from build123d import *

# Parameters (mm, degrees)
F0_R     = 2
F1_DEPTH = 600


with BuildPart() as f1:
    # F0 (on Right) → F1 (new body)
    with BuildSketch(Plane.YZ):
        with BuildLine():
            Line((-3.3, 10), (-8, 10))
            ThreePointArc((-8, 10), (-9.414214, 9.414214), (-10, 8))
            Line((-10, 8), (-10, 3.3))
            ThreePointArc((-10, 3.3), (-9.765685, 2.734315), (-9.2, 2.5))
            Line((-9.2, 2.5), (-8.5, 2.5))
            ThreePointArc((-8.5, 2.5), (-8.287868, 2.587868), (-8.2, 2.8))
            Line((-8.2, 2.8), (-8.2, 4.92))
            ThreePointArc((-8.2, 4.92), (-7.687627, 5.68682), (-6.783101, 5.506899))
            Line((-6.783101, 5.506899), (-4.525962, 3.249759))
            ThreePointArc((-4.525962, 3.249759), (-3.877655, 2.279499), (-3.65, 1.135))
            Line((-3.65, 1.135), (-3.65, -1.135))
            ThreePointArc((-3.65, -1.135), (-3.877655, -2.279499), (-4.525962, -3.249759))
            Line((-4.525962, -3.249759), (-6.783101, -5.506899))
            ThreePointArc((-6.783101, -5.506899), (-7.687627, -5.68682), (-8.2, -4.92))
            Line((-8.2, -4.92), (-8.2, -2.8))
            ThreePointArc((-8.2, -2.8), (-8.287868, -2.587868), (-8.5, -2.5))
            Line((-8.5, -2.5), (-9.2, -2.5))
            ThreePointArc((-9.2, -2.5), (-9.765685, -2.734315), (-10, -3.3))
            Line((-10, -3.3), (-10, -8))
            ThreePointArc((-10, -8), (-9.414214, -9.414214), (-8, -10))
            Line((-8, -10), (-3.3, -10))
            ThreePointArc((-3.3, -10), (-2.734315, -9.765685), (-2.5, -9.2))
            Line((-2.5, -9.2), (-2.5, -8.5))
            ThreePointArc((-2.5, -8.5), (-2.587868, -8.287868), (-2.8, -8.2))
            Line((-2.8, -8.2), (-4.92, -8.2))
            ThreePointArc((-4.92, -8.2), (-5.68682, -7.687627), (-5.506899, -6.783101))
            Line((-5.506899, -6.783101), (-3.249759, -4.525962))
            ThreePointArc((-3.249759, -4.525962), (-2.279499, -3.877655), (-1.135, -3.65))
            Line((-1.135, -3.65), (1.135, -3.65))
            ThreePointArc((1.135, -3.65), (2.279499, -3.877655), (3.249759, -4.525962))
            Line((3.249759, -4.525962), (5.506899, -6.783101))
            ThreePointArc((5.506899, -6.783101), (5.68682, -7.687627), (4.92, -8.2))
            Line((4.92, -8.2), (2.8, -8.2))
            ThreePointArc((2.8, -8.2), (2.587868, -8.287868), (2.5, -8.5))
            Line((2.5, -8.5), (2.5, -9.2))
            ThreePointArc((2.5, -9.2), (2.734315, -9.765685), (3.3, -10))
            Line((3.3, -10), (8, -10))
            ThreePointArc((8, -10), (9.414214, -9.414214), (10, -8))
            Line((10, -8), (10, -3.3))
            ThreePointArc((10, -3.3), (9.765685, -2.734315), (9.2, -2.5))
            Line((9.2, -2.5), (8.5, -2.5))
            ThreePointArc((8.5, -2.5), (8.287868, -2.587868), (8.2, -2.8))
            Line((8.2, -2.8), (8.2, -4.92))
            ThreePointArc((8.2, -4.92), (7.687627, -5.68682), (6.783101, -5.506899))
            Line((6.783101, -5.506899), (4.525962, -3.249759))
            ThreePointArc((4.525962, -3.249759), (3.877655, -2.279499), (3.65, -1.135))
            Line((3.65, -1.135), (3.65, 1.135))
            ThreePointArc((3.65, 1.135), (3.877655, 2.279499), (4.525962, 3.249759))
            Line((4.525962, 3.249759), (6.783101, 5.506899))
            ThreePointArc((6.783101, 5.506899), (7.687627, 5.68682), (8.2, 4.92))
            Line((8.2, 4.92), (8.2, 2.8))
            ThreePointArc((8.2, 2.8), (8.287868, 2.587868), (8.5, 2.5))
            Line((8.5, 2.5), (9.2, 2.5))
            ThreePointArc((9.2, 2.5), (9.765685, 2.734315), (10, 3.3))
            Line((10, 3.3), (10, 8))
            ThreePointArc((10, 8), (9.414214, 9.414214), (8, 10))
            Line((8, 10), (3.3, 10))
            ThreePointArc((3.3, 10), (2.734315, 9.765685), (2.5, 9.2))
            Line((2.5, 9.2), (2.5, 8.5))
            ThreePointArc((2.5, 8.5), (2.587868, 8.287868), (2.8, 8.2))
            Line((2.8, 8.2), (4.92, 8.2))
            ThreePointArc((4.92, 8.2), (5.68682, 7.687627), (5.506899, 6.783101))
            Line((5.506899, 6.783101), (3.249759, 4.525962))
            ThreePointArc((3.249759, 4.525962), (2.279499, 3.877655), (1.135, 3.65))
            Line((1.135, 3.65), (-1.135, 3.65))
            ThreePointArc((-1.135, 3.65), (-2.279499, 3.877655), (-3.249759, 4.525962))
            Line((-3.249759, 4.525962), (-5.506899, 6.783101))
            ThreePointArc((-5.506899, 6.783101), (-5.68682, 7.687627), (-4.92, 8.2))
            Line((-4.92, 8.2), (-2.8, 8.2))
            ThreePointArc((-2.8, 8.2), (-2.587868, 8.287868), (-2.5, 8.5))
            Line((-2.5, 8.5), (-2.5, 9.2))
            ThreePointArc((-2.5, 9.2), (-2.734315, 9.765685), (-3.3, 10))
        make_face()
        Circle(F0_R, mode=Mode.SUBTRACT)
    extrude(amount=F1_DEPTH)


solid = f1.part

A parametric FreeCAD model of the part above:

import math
import FreeCAD as App
import Part
import Sketcher
from FreeCAD import Vector
Q = App.Units.Quantity

doc = App.newDocument("Part")
body = doc.addObject("PartDesign::Body", "Body")

sketch1 = doc.addObject("Sketcher::SketchObject", "Sketch")
body.addObject(sketch1)
sketch1.AttachmentSupport = (doc.YZ_Plane, [""])
sketch1.MapMode = "FlatFace"
sketch1.addGeometry(Part.LineSegment(Vector(-3.3, 10, 0), Vector(-8, 10, 0)), False)
sketch1.addGeometry(Part.ArcOfCircle(Part.Circle(Vector(-8, 8, 0), Vector(0, 0, 1), 2), math.radians(90), math.radians(180)), False)
sketch1.addGeometry(Part.LineSegment(Vector(-10, 8, 0), Vector(-10, 3.3, 0)), False)
sketch1.addGeometry(Part.ArcOfCircle(Part.Circle(Vector(-9.2, 3.3, 0), Vector(0, 0, 1), 0.8), math.radians(-180), math.radians(-90)), False)
sketch1.addGeometry(Part.LineSegment(Vector(-9.2, 2.5, 0), Vector(-8.5, 2.5, 0)), False)
sketch1.addGeometry(Part.ArcOfCircle(Part.Circle(Vector(-8.5, 2.8, 0), Vector(0, 0, 1), 0.3), math.radians(-90), math.radians(0)), False)
sketch1.addGeometry(Part.LineSegment(Vector(-8.2, 2.8, 0), Vector(-8.2, 4.92, 0)), False)
sketch1.addGeometry(Part.ArcOfCircle(Part.Circle(Vector(-7.37, 4.92, 0), Vector(0, 0, 1), 0.83), math.radians(45), math.radians(180)), False)
sketch1.addGeometry(Part.LineSegment(Vector(-6.78, 5.51, 0), Vector(-4.53, 3.25, 0)), False)
sketch1.addGeometry(Part.ArcOfCircle(Part.Circle(Vector(-6.64, 1.13, 0), Vector(0, 0, 1), 2.99), math.radians(0), math.radians(45)), False)
sketch1.addGeometry(Part.LineSegment(Vector(-3.65, 1.14, 0), Vector(-3.65, -1.14, 0)), False)
sketch1.addGeometry(Part.ArcOfCircle(Part.Circle(Vector(-6.64, -1.13, 0), Vector(0, 0, 1), 2.99), math.radians(-45), math.radians(0)), False)
sketch1.addGeometry(Part.LineSegment(Vector(-4.53, -3.25, 0), Vector(-6.78, -5.51, 0)), False)
sketch1.addGeometry(Part.ArcOfCircle(Part.Circle(Vector(-7.37, -4.92, 0), Vector(0, 0, 1), 0.83), math.radians(-180), math.radians(-45)), False)
sketch1.addGeometry(Part.LineSegment(Vector(-8.2, -4.92, 0), Vector(-8.2, -2.8, 0)), False)
sketch1.addGeometry(Part.ArcOfCircle(Part.Circle(Vector(-8.5, -2.8, 0), Vector(0, 0, 1), 0.3), math.radians(0), math.radians(90)), False)
sketch1.addGeometry(Part.LineSegment(Vector(-8.5, -2.5, 0), Vector(-9.2, -2.5, 0)), False)
sketch1.addGeometry(Part.ArcOfCircle(Part.Circle(Vector(-9.2, -3.3, 0), Vector(0, 0, 1), 0.8), math.radians(90), math.radians(180)), False)
sketch1.addGeometry(Part.LineSegment(Vector(-10, -3.3, 0), Vector(-10, -8, 0)), False)
sketch1.addGeometry(Part.ArcOfCircle(Part.Circle(Vector(-8, -8, 0), Vector(0, 0, 1), 2), math.radians(180), math.radians(270)), False)
sketch1.addGeometry(Part.LineSegment(Vector(-8, -10, 0), Vector(-3.3, -10, 0)), False)
sketch1.addGeometry(Part.ArcOfCircle(Part.Circle(Vector(-3.3, -9.2, 0), Vector(0, 0, 1), 0.8), math.radians(-90), math.radians(0)), False)
sketch1.addGeometry(Part.LineSegment(Vector(-2.5, -9.2, 0), Vector(-2.5, -8.5, 0)), False)
sketch1.addGeometry(Part.ArcOfCircle(Part.Circle(Vector(-2.8, -8.5, 0), Vector(0, 0, 1), 0.3), math.radians(0), math.radians(90)), False)
sketch1.addGeometry(Part.LineSegment(Vector(-2.8, -8.2, 0), Vector(-4.92, -8.2, 0)), False)
sketch1.addGeometry(Part.ArcOfCircle(Part.Circle(Vector(-4.92, -7.37, 0), Vector(0, 0, 1), 0.83), math.radians(135), math.radians(270)), False)
sketch1.addGeometry(Part.LineSegment(Vector(-5.51, -6.78, 0), Vector(-3.25, -4.53, 0)), False)
sketch1.addGeometry(Part.ArcOfCircle(Part.Circle(Vector(-1.13, -6.64, 0), Vector(0, 0, 1), 2.99), math.radians(90), math.radians(135)), False)
sketch1.addGeometry(Part.LineSegment(Vector(-1.14, -3.65, 0), Vector(1.14, -3.65, 0)), False)
sketch1.addGeometry(Part.ArcOfCircle(Part.Circle(Vector(1.13, -6.64, 0), Vector(0, 0, 1), 2.99), math.radians(45), math.radians(90)), False)
sketch1.addGeometry(Part.LineSegment(Vector(3.25, -4.53, 0), Vector(5.51, -6.78, 0)), False)
sketch1.addGeometry(Part.ArcOfCircle(Part.Circle(Vector(4.92, -7.37, 0), Vector(0, 0, 1), 0.83), math.radians(-90), math.radians(45)), False)
sketch1.addGeometry(Part.LineSegment(Vector(4.92, -8.2, 0), Vector(2.8, -8.2, 0)), False)
sketch1.addGeometry(Part.ArcOfCircle(Part.Circle(Vector(2.8, -8.5, 0), Vector(0, 0, 1), 0.3), math.radians(90), math.radians(180)), False)
sketch1.addGeometry(Part.LineSegment(Vector(2.5, -8.5, 0), Vector(2.5, -9.2, 0)), False)
sketch1.addGeometry(Part.ArcOfCircle(Part.Circle(Vector(3.3, -9.2, 0), Vector(0, 0, 1), 0.8), math.radians(-180), math.radians(-90)), False)
sketch1.addGeometry(Part.LineSegment(Vector(3.3, -10, 0), Vector(8, -10, 0)), False)
sketch1.addGeometry(Part.ArcOfCircle(Part.Circle(Vector(8, -8, 0), Vector(0, 0, 1), 2), math.radians(-90), math.radians(0)), False)
sketch1.addGeometry(Part.LineSegment(Vector(10, -8, 0), Vector(10, -3.3, 0)), False)
sketch1.addGeometry(Part.ArcOfCircle(Part.Circle(Vector(9.2, -3.3, 0), Vector(0, 0, 1), 0.8), math.radians(0), math.radians(90)), False)
sketch1.addGeometry(Part.LineSegment(Vector(9.2, -2.5, 0), Vector(8.5, -2.5, 0)), False)
sketch1.addGeometry(Part.ArcOfCircle(Part.Circle(Vector(8.5, -2.8, 0), Vector(0, 0, 1), 0.3), math.radians(90), math.radians(180)), False)
sketch1.addGeometry(Part.LineSegment(Vector(8.2, -2.8, 0), Vector(8.2, -4.92, 0)), False)
sketch1.addGeometry(Part.ArcOfCircle(Part.Circle(Vector(7.37, -4.92, 0), Vector(0, 0, 1), 0.83), math.radians(-135), math.radians(0)), False)
sketch1.addGeometry(Part.LineSegment(Vector(6.78, -5.51, 0), Vector(4.53, -3.25, 0)), False)
sketch1.addGeometry(Part.ArcOfCircle(Part.Circle(Vector(6.64, -1.13, 0), Vector(0, 0, 1), 2.99), math.radians(-180), math.radians(-135)), False)
sketch1.addGeometry(Part.LineSegment(Vector(3.65, -1.14, 0), Vector(3.65, 1.14, 0)), False)
sketch1.addGeometry(Part.ArcOfCircle(Part.Circle(Vector(6.64, 1.13, 0), Vector(0, 0, 1), 2.99), math.radians(135), math.radians(180)), False)
sketch1.addGeometry(Part.LineSegment(Vector(4.53, 3.25, 0), Vector(6.78, 5.51, 0)), False)
sketch1.addGeometry(Part.ArcOfCircle(Part.Circle(Vector(7.37, 4.92, 0), Vector(0, 0, 1), 0.83), math.radians(0), math.radians(135)), False)
sketch1.addGeometry(Part.LineSegment(Vector(8.2, 4.92, 0), Vector(8.2, 2.8, 0)), False)
sketch1.addGeometry(Part.ArcOfCircle(Part.Circle(Vector(8.5, 2.8, 0), Vector(0, 0, 1), 0.3), math.radians(-180), math.radians(-90)), False)
sketch1.addGeometry(Part.LineSegment(Vector(8.5, 2.5, 0), Vector(9.2, 2.5, 0)), False)
sketch1.addGeometry(Part.ArcOfCircle(Part.Circle(Vector(9.2, 3.3, 0), Vector(0, 0, 1), 0.8), math.radians(-90), math.radians(0)), False)
sketch1.addGeometry(Part.LineSegment(Vector(10, 3.3, 0), Vector(10, 8, 0)), False)
sketch1.addGeometry(Part.ArcOfCircle(Part.Circle(Vector(8, 8, 0), Vector(0, 0, 1), 2), math.radians(0), math.radians(90)), False)
sketch1.addGeometry(Part.LineSegment(Vector(8, 10, 0), Vector(3.3, 10, 0)), False)
sketch1.addGeometry(Part.ArcOfCircle(Part.Circle(Vector(3.3, 9.2, 0), Vector(0, 0, 1), 0.8), math.radians(90), math.radians(180)), False)
sketch1.addGeometry(Part.LineSegment(Vector(2.5, 9.2, 0), Vector(2.5, 8.5, 0)), False)
sketch1.addGeometry(Part.ArcOfCircle(Part.Circle(Vector(2.8, 8.5, 0), Vector(0, 0, 1), 0.3), math.radians(-180), math.radians(-90)), False)
sketch1.addGeometry(Part.LineSegment(Vector(2.8, 8.2, 0), Vector(4.92, 8.2, 0)), False)
sketch1.addGeometry(Part.ArcOfCircle(Part.Circle(Vector(4.92, 7.37, 0), Vector(0, 0, 1), 0.83), math.radians(-45), math.radians(90)), False)
sketch1.addGeometry(Part.LineSegment(Vector(5.51, 6.78, 0), Vector(3.25, 4.53, 0)), False)
sketch1.addGeometry(Part.ArcOfCircle(Part.Circle(Vector(1.13, 6.64, 0), Vector(0, 0, 1), 2.99), math.radians(-90), math.radians(-45)), False)
sketch1.addGeometry(Part.LineSegment(Vector(1.14, 3.65, 0), Vector(-1.14, 3.65, 0)), False)
sketch1.addGeometry(Part.ArcOfCircle(Part.Circle(Vector(-1.13, 6.64, 0), Vector(0, 0, 1), 2.99), math.radians(-135), math.radians(-90)), False)
sketch1.addGeometry(Part.LineSegment(Vector(-3.25, 4.53, 0), Vector(-5.51, 6.78, 0)), False)
sketch1.addGeometry(Part.ArcOfCircle(Part.Circle(Vector(-4.92, 7.37, 0), Vector(0, 0, 1), 0.83), math.radians(90), math.radians(225)), False)
sketch1.addGeometry(Part.LineSegment(Vector(-4.92, 8.2, 0), Vector(-2.8, 8.2, 0)), False)
sketch1.addGeometry(Part.ArcOfCircle(Part.Circle(Vector(-2.8, 8.5, 0), Vector(0, 0, 1), 0.3), math.radians(-90), math.radians(0)), False)
sketch1.addGeometry(Part.LineSegment(Vector(-2.5, 8.5, 0), Vector(-2.5, 9.2, 0)), False)
sketch1.addGeometry(Part.ArcOfCircle(Part.Circle(Vector(-3.3, 9.2, 0), Vector(0, 0, 1), 0.8), math.radians(0), math.radians(90)), False)
sketch1.addGeometry(Part.Circle(Vector(0, 0, 0), Vector(0, 0, 1), 2), False)
sketch1.addConstraint(Sketcher.Constraint("Tangent", 0, 2, 1, 1))
sketch1.addConstraint(Sketcher.Constraint("Tangent", 1, 2, 2, 1))
sketch1.addConstraint(Sketcher.Constraint("Tangent", 2, 2, 3, 1))
sketch1.addConstraint(Sketcher.Constraint("Tangent", 3, 2, 4, 1))
sketch1.addConstraint(Sketcher.Constraint("Tangent", 4, 2, 5, 1))
sketch1.addConstraint(Sketcher.Constraint("Tangent", 5, 2, 6, 1))
sketch1.addConstraint(Sketcher.Constraint("Tangent", 6, 2, 7, 2))
sketch1.addConstraint(Sketcher.Constraint("Tangent", 7, 1, 8, 1))
sketch1.addConstraint(Sketcher.Constraint("Tangent", 8, 2, 9, 2))
sketch1.addConstraint(Sketcher.Constraint("Tangent", 9, 1, 10, 1))
sketch1.addConstraint(Sketcher.Constraint("Tangent", 10, 2, 11, 2))
sketch1.addConstraint(Sketcher.Constraint("Tangent", 11, 1, 12, 1))
sketch1.addConstraint(Sketcher.Constraint("Tangent", 12, 2, 13, 2))
sketch1.addConstraint(Sketcher.Constraint("Tangent", 13, 1, 14, 1))
sketch1.addConstraint(Sketcher.Constraint("Tangent", 14, 2, 15, 1))
sketch1.addConstraint(Sketcher.Constraint("Tangent", 15, 2, 16, 1))
sketch1.addConstraint(Sketcher.Constraint("Tangent", 16, 2, 17, 1))
sketch1.addConstraint(Sketcher.Constraint("Tangent", 17, 2, 18, 1))
sketch1.addConstraint(Sketcher.Constraint("Tangent", 18, 2, 19, 1))
sketch1.addConstraint(Sketcher.Constraint("Tangent", 19, 2, 20, 1))
sketch1.addConstraint(Sketcher.Constraint("Tangent", 20, 2, 21, 1))
sketch1.addConstraint(Sketcher.Constraint("Tangent", 21, 2, 22, 1))
sketch1.addConstraint(Sketcher.Constraint("Tangent", 22, 2, 23, 1))
sketch1.addConstraint(Sketcher.Constraint("Tangent", 23, 2, 24, 1))
sketch1.addConstraint(Sketcher.Constraint("Tangent", 24, 2, 25, 2))
sketch1.addConstraint(Sketcher.Constraint("Tangent", 25, 1, 26, 1))
sketch1.addConstraint(Sketcher.Constraint("Tangent", 26, 2, 27, 2))
sketch1.addConstraint(Sketcher.Constraint("Tangent", 27, 1, 28, 1))
sketch1.addConstraint(Sketcher.Constraint("Tangent", 28, 2, 29, 2))
sketch1.addConstraint(Sketcher.Constraint("Tangent", 29, 1, 30, 1))
sketch1.addConstraint(Sketcher.Constraint("Tangent", 30, 2, 31, 2))
sketch1.addConstraint(Sketcher.Constraint("Tangent", 31, 1, 32, 1))
sketch1.addConstraint(Sketcher.Constraint("Tangent", 32, 2, 33, 1))
sketch1.addConstraint(Sketcher.Constraint("Tangent", 33, 2, 34, 1))
sketch1.addConstraint(Sketcher.Constraint("Tangent", 34, 2, 35, 1))
sketch1.addConstraint(Sketcher.Constraint("Tangent", 35, 2, 36, 1))
sketch1.addConstraint(Sketcher.Constraint("Tangent", 36, 2, 37, 1))
sketch1.addConstraint(Sketcher.Constraint("Tangent", 37, 2, 38, 1))
sketch1.addConstraint(Sketcher.Constraint("Tangent", 38, 2, 39, 1))
sketch1.addConstraint(Sketcher.Constraint("Tangent", 39, 2, 40, 1))
sketch1.addConstraint(Sketcher.Constraint("Tangent", 40, 2, 41, 1))
sketch1.addConstraint(Sketcher.Constraint("Tangent", 41, 2, 42, 1))
sketch1.addConstraint(Sketcher.Constraint("Tangent", 42, 2, 43, 2))
sketch1.addConstraint(Sketcher.Constraint("Tangent", 43, 1, 44, 1))
sketch1.addConstraint(Sketcher.Constraint("Tangent", 44, 2, 45, 2))
sketch1.addConstraint(Sketcher.Constraint("Tangent", 45, 1, 46, 1))
sketch1.addConstraint(Sketcher.Constraint("Tangent", 46, 2, 47, 2))
sketch1.addConstraint(Sketcher.Constraint("Tangent", 47, 1, 48, 1))
sketch1.addConstraint(Sketcher.Constraint("Tangent", 48, 2, 49, 2))
sketch1.addConstraint(Sketcher.Constraint("Tangent", 49, 1, 50, 1))
sketch1.addConstraint(Sketcher.Constraint("Tangent", 50, 2, 51, 1))
sketch1.addConstraint(Sketcher.Constraint("Tangent", 51, 2, 52, 1))
sketch1.addConstraint(Sketcher.Constraint("Tangent", 52, 2, 53, 1))
sketch1.addConstraint(Sketcher.Constraint("Tangent", 53, 2, 54, 1))
sketch1.addConstraint(Sketcher.Constraint("Tangent", 54, 2, 55, 1))
sketch1.addConstraint(Sketcher.Constraint("Tangent", 55, 2, 56, 1))
sketch1.addConstraint(Sketcher.Constraint("Tangent", 56, 2, 57, 1))
sketch1.addConstraint(Sketcher.Constraint("Tangent", 57, 2, 58, 1))
sketch1.addConstraint(Sketcher.Constraint("Tangent", 58, 2, 59, 1))
sketch1.addConstraint(Sketcher.Constraint("Tangent", 59, 2, 60, 1))
sketch1.addConstraint(Sketcher.Constraint("Tangent", 60, 2, 61, 2))
sketch1.addConstraint(Sketcher.Constraint("Tangent", 61, 1, 62, 1))
sketch1.addConstraint(Sketcher.Constraint("Tangent", 62, 2, 63, 2))
sketch1.addConstraint(Sketcher.Constraint("Tangent", 63, 1, 64, 1))
sketch1.addConstraint(Sketcher.Constraint("Tangent", 64, 2, 65, 2))
sketch1.addConstraint(Sketcher.Constraint("Tangent", 65, 1, 66, 1))
sketch1.addConstraint(Sketcher.Constraint("Tangent", 66, 2, 67, 2))
sketch1.addConstraint(Sketcher.Constraint("Tangent", 67, 1, 68, 1))
sketch1.addConstraint(Sketcher.Constraint("Tangent", 68, 2, 69, 1))
sketch1.addConstraint(Sketcher.Constraint("Tangent", 69, 2, 70, 1))
sketch1.addConstraint(Sketcher.Constraint("Tangent", 70, 2, 71, 1))
sketch1.addConstraint(Sketcher.Constraint("Tangent", 71, 2, 0, 1))
sketch1.addConstraint(Sketcher.Constraint("Horizontal", 0))
sketch1.addConstraint(Sketcher.Constraint("Vertical", 2))
sketch1.addConstraint(Sketcher.Constraint("Horizontal", 4))
sketch1.addConstraint(Sketcher.Constraint("Vertical", 6))
sketch1.addConstraint(Sketcher.Constraint("Vertical", 10))
sketch1.addConstraint(Sketcher.Constraint("Vertical", 14))
sketch1.addConstraint(Sketcher.Constraint("Horizontal", 16))
sketch1.addConstraint(Sketcher.Constraint("Vertical", 18))
sketch1.addConstraint(Sketcher.Constraint("Horizontal", 20))
sketch1.addConstraint(Sketcher.Constraint("Vertical", 22))
sketch1.addConstraint(Sketcher.Constraint("Horizontal", 24))
sketch1.addConstraint(Sketcher.Constraint("Horizontal", 28))
sketch1.addConstraint(Sketcher.Constraint("Horizontal", 32))
sketch1.addConstraint(Sketcher.Constraint("Vertical", 34))
sketch1.addConstraint(Sketcher.Constraint("Horizontal", 36))
sketch1.addConstraint(Sketcher.Constraint("Vertical", 38))
sketch1.addConstraint(Sketcher.Constraint("Horizontal", 40))
sketch1.addConstraint(Sketcher.Constraint("Vertical", 42))
sketch1.addConstraint(Sketcher.Constraint("Vertical", 46))
sketch1.addConstraint(Sketcher.Constraint("Vertical", 50))
sketch1.addConstraint(Sketcher.Constraint("Horizontal", 52))
sketch1.addConstraint(Sketcher.Constraint("Vertical", 54))
sketch1.addConstraint(Sketcher.Constraint("Horizontal", 56))
sketch1.addConstraint(Sketcher.Constraint("Vertical", 58))
sketch1.addConstraint(Sketcher.Constraint("Horizontal", 60))
sketch1.addConstraint(Sketcher.Constraint("Horizontal", 64))
sketch1.addConstraint(Sketcher.Constraint("Horizontal", 68))
sketch1.addConstraint(Sketcher.Constraint("Vertical", 70))
sketch1.addConstraint(Sketcher.Constraint("Coincident", 72, 3, -1, 1))
sketch1.addConstraint(Sketcher.Constraint("Equal", 9, 11))
sketch1.addConstraint(Sketcher.Constraint("Equal", 7, 13))
sketch1.addConstraint(Sketcher.Constraint("Equal", 5, 15))
sketch1.addConstraint(Sketcher.Constraint("Equal", 3, 17))
sketch1.addConstraint(Sketcher.Constraint("Equal", 1, 19))
sketch1.addConstraint(Sketcher.Constraint("Equal", 17, 21))
sketch1.addConstraint(Sketcher.Constraint("Equal", 15, 23))
sketch1.addConstraint(Sketcher.Constraint("Equal", 13, 25))
sketch1.addConstraint(Sketcher.Constraint("Equal", 11, 27))
sketch1.addConstraint(Sketcher.Constraint("Equal", 27, 29))
sketch1.addConstraint(Sketcher.Constraint("Equal", 25, 31))
sketch1.addConstraint(Sketcher.Constraint("Equal", 23, 33))
sketch1.addConstraint(Sketcher.Constraint("Equal", 21, 35))
sketch1.addConstraint(Sketcher.Constraint("Equal", 19, 37))
sketch1.addConstraint(Sketcher.Constraint("Equal", 35, 39))
sketch1.addConstraint(Sketcher.Constraint("Equal", 33, 41))
sketch1.addConstraint(Sketcher.Constraint("Equal", 31, 43))
sketch1.addConstraint(Sketcher.Constraint("Equal", 29, 45))
sketch1.addConstraint(Sketcher.Constraint("Equal", 45, 47))
sketch1.addConstraint(Sketcher.Constraint("Equal", 43, 49))
sketch1.addConstraint(Sketcher.Constraint("Equal", 41, 51))
sketch1.addConstraint(Sketcher.Constraint("Equal", 39, 53))
sketch1.addConstraint(Sketcher.Constraint("Equal", 37, 55))
sketch1.addConstraint(Sketcher.Constraint("Equal", 53, 57))
sketch1.addConstraint(Sketcher.Constraint("Equal", 51, 59))
sketch1.addConstraint(Sketcher.Constraint("Equal", 49, 61))
sketch1.addConstraint(Sketcher.Constraint("Equal", 47, 63))
sketch1.addConstraint(Sketcher.Constraint("Equal", 63, 65))
sketch1.addConstraint(Sketcher.Constraint("Equal", 61, 67))
sketch1.addConstraint(Sketcher.Constraint("Equal", 59, 69))
sketch1.addConstraint(Sketcher.Constraint("Equal", 57, 71))
sketch1.addConstraint(Sketcher.Constraint("Equal", 55, 72))
sketch1.addConstraint(Sketcher.Constraint("Symmetric", 1, 3, 37, 3, -1, 1))
sketch1.addConstraint(Sketcher.Constraint("Symmetric", 5, 3, 41, 3, -1, 1))
sketch1.addConstraint(Sketcher.Constraint("Symmetric", 9, 3, 45, 3, -1, 1))
sketch1.addConstraint(Sketcher.Constraint("Symmetric", 13, 3, 49, 3, -1, 1))
sketch1.addConstraint(Sketcher.Constraint("Symmetric", 17, 3, 53, 3, -1, 1))
sketch1.addConstraint(Sketcher.Constraint("Symmetric", 21, 3, 57, 3, -1, 1))
sketch1.addConstraint(Sketcher.Constraint("Symmetric", 25, 3, 61, 3, -1, 1))
sketch1.addConstraint(Sketcher.Constraint("Symmetric", 27, 3, 63, 3, -1, 1))
sketch1.addConstraint(Sketcher.Constraint("Symmetric", 31, 3, 67, 3, -1, 1))
sketch1.addConstraint(Sketcher.Constraint("Symmetric", 25, 3, 31, 3, -2))
sketch1.addConstraint(Sketcher.Constraint("Symmetric", 21, 3, 35, 3, -2))
sketch1.addConstraint(Sketcher.Constraint("Symmetric", 17, 3, 39, 3, -2))
sketch1.addConstraint(Sketcher.Constraint("Symmetric", 13, 3, 43, 3, -2))
sketch1.addConstraint(Sketcher.Constraint("Symmetric", 8, 2, 47, 1, -2))
sketch1.addConstraint(Sketcher.Constraint("Perpendicular", 8, 12))
sketch1.addConstraint(Sketcher.Constraint("Parallel", 12, 26))
sketch1.addConstraint(Sketcher.Constraint("Perpendicular", 26, 30))
sketch1.addConstraint(Sketcher.Constraint("Perpendicular", 44, 48))
sketch1.addConstraint(Sketcher.Constraint("Perpendicular", 62, 66))
sketch1.addConstraint(Sketcher.Constraint("Vertical", 23, 3, 69, 3))
sketch1.addConstraint(Sketcher.Constraint("Equal", 56, 2))
sketch1.addConstraint(Sketcher.Constraint("Equal", 68, 6))
sketch1.addConstraint(Sketcher.Constraint("Equal", 64, 10))
sketch1.addConstraint(Sketcher.Constraint("Equal", 52, 22))
sketch1.addConstraint(Sketcher.Constraint("Equal", 12, 26))
sketch1.addConstraint(Sketcher.Constraint("Diameter", 72, Q("4 mm")))
sketch1.addConstraint(Sketcher.Constraint("Radius", 3, Q("0.800001 mm")))
sketch1.addConstraint(Sketcher.Constraint("Radius", 5, Q("0.3 mm")))
sketch1.addConstraint(Sketcher.Constraint("Radius", 7, Q("0.83 mm")))
sketch1.addConstraint(Sketcher.Constraint("DistanceX", 0, 2, 0, 1, Q("4.7 mm")))
sketch1.addConstraint(Sketcher.Constraint("DistanceX", 4, 1, 4, 2, Q("0.7 mm")))
sketch1.addConstraint(Sketcher.Constraint("DistanceX", 1, 3, -1, 1, Q("8.000001 mm")))
sketch1.addConstraint(Sketcher.Constraint("DistanceX", 24, 2, 24, 1, Q("2.12 mm")))
sketch1.addConstraint(Sketcher.Constraint("DistanceX", 28, 1, 28, 2, Q("2.27 mm")))
sketch1.addConstraint(Sketcher.Constraint("DistanceX", 9, 1, -1, 1, Q("3.65 mm")))
pad1 = doc.addObject("PartDesign::Pad", "Pad")
body.addObject(pad1)
pad1.Profile = sketch1
pad1.Length = 600

doc.recompute()
